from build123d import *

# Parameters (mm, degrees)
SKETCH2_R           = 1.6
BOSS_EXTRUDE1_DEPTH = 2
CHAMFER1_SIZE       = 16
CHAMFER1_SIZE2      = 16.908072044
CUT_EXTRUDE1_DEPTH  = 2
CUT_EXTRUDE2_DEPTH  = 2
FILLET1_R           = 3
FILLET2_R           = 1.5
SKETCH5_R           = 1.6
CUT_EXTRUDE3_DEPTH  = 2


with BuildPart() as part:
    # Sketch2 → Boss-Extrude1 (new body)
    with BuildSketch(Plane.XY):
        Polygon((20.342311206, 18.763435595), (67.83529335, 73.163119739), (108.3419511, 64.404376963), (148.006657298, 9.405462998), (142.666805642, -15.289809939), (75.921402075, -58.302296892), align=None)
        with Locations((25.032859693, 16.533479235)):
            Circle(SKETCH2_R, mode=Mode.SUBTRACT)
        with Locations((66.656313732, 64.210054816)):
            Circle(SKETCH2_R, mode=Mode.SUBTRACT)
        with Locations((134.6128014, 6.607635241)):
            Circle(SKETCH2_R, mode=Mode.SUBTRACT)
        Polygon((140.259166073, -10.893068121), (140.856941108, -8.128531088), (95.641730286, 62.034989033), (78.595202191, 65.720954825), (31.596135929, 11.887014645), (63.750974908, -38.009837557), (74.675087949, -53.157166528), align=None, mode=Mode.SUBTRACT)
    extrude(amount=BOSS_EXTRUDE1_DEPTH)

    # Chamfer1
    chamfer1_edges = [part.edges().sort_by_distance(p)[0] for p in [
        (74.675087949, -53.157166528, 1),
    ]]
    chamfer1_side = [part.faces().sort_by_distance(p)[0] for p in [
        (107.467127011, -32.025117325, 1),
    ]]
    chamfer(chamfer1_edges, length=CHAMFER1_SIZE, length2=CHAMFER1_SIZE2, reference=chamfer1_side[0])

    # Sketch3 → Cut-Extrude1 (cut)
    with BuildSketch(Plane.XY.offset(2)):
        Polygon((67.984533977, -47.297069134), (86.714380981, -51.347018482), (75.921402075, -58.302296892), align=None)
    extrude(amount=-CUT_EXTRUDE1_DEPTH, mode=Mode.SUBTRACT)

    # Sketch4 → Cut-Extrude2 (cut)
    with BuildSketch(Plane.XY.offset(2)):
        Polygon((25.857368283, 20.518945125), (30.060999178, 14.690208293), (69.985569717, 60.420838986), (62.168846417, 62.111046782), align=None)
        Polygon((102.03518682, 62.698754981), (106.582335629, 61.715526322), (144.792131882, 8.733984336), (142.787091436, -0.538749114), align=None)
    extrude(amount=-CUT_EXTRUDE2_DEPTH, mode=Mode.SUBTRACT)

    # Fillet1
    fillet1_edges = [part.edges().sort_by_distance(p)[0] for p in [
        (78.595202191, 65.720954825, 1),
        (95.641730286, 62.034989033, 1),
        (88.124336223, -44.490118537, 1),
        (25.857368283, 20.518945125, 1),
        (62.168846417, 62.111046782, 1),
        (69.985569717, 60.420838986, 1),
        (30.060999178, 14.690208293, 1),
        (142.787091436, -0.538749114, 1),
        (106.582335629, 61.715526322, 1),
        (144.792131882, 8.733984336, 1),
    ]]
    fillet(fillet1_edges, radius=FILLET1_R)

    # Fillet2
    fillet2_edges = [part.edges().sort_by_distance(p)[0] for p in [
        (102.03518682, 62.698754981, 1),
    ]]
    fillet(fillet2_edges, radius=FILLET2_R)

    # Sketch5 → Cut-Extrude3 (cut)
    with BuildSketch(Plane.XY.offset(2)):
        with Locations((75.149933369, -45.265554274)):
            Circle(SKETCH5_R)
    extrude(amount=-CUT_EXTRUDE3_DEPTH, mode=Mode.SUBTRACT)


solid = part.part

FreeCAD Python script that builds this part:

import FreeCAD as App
import Part
import Sketcher
from FreeCAD import Vector


def edges_at(feature, points):
    """Names of the edges that pass closest to the given points."""
    edges = feature.Shape.Edges
    near = lambda p: min(range(len(edges)), key=lambda i: edges[i].distToShape(Part.Vertex(*p))[0])
    return sorted({f"Edge{near(p) + 1}" for p in points})

doc = App.newDocument("Part")
body = doc.addObject("PartDesign::Body", "Body")

sketch1 = doc.addObject("Sketcher::SketchObject", "Sketch")
body.addObject(sketch1)
sketch1.AttachmentSupport = (doc.XY_Plane, [""])
sketch1.MapMode = "FlatFace"
sketch1.addGeometry([
    Part.LineSegment(Vector(67.835293, 73.16312, 0), Vector(20.342311, 18.763436, 0)),
    Part.LineSegment(Vector(20.342311, 18.763436, 0), Vector(75.921402, -58.302297, 0)),
    Part.LineSegment(Vector(75.921402, -58.302297, 0), Vector(142.666806, -15.28981, 0)),
    Part.LineSegment(Vector(142.666806, -15.28981, 0), Vector(148.006657, 9.405463, 0)),
    Part.LineSegment(Vector(148.006657, 9.405463, 0), Vector(108.341951, 64.404377, 0)),
    Part.LineSegment(Vector(108.341951, 64.404377, 0), Vector(67.835293, 73.16312, 0)),
    Part.LineSegment(Vector(140.259166, -10.893068, 0), Vector(74.675088, -53.157167, 0)),
    Part.LineSegment(Vector(74.675088, -53.157167, 0), Vector(63.750975, -38.009838, 0)),
    Part.LineSegment(Vector(63.750975, -38.009838, 0), Vector(31.596136, 11.887015, 0)),
    Part.LineSegment(Vector(31.596136, 11.887015, 0), Vector(78.595202, 65.720955, 0)),
    Part.LineSegment(Vector(78.595202, 65.720955, 0), Vector(95.64173, 62.034989, 0)),
    Part.LineSegment(Vector(95.64173, 62.034989, 0), Vector(140.856941, -8.128531, 0)),
    Part.LineSegment(Vector(140.856941, -8.128531, 0), Vector(140.259166, -10.893068, 0)),
    Part.Circle(Vector(134.612801, 6.607635, 0), Vector(0, 0, 1), 1.6),
    Part.Circle(Vector(25.03286, 16.533479, 0), Vector(0, 0, 1), 1.6),
    Part.Circle(Vector(66.656314, 64.210055, 0), Vector(0, 0, 1), 1.6),
], False)
sketch1.addConstraint([
    Sketcher.Constraint("Coincident", 0, 2, 1, 1),
    Sketcher.Constraint("Coincident", 1, 2, 2, 1),
    Sketcher.Constraint("Coincident", 2, 2, 3, 1),
    Sketcher.Constraint("Coincident", 3, 2, 4, 1),
    Sketcher.Constraint("Coincident", 4, 2, 5, 1),
    Sketcher.Constraint("Coincident", 5, 2, 0, 1),
    Sketcher.Constraint("Coincident", 6, 2, 7, 1),
    Sketcher.Constraint("Coincident", 7, 2, 8, 1),
    Sketcher.Constraint("Coincident", 8, 2, 9, 1),
    Sketcher.Constraint("Coincident", 9, 2, 10, 1),
    Sketcher.Constraint("Coincident", 10, 2, 11, 1),
    Sketcher.Constraint("Coincident", 11, 2, 12, 1),
    Sketcher.Constraint("Coincident", 12, 2, 6, 1),
    Sketcher.Constraint("Equal", 13, 14),
    Sketcher.Constraint("Equal", 14, 15),
    Sketcher.Constraint("Parallel", 1, 4),
    Sketcher.Constraint("Perpendicular", 3, 5),
    Sketcher.Constraint("Parallel", 2, 6),
    Sketcher.Constraint("Parallel", 4, 7),
    Sketcher.Constraint("Perpendicular", 6, 8),
    Sketcher.Constraint("Parallel", 0, 9),
    Sketcher.Constraint("Parallel", 5, 10),
    Sketcher.Constraint("Parallel", 8, 11),
    Sketcher.Constraint("Perpendicular", 10, 12),
    Sketcher.Constraint("Diameter", 13, 3.2),
    Sketcher.Constraint("DistanceX", -1, 1, 13, 3, 134.612801),
    Sketcher.Constraint("DistanceY", 13, 3, 0, 2, 12.1558),
    Sketcher.Constraint("DistanceX", 1, 2, 13, 3, 58.691399),
    Sketcher.Constraint("DistanceY", 6, 2, 13, 3, 59.764802),
    Sketcher.Constraint("DistanceY", 15, 3, 9, 2, 1.5109),
    Sketcher.Constraint("DistanceY", 6, 2, 12, 2, 42.264098),
    Sketcher.Constraint("Distance", 5, 41.442791),
    Sketcher.Constraint("DistanceX", -1, 1, 14, 3, 25.03286),
    Sketcher.Constraint("DistanceY", -1, 1, 14, 3, 16.533479),
    Sketcher.Constraint("DistanceX", -1, 1, 0, 2, 20.342311),
    Sketcher.Constraint("DistanceY", 2, 2, -1, 1, 15.28981),
    Sketcher.Constraint("DistanceX", -1, 1, 4, 2, 108.341951),
    Sketcher.Constraint("DistanceY", -1, 1, 5, 2, 73.16312),
    Sketcher.Constraint("DistanceX", -1, 1, 10, 2, 95.64173),
    Sketcher.Constraint("DistanceY", -1, 1, 10, 2, 62.034989),
    Sketcher.Constraint("DistanceX", -1, 1, 11, 2, 140.856941),
    Sketcher.Constraint("DistanceY", 11, 2, -1, 1, 8.128531),
    Sketcher.Constraint("DistanceY", 12, 2, -1, 1, 10.893068),
    Sketcher.Constraint("DistanceY", 13, 3, 15, 3, 57.60242),
    Sketcher.Constraint("DistanceX", 15, 3, 1, 2, 9.265088),
    Sketcher.Constraint("DistanceY", 1, 2, 15, 3, 122.512352),
    Sketcher.Constraint("DistanceX", 2, 2, 3, 2, 5.339852),
    Sketcher.Constraint("DistanceY", 6, 2, 7, 2, 15.147329),
])
pad1 = doc.addObject("PartDesign::Pad", "Pad")
body.addObject(pad1)
pad1.Profile = sketch1
pad1.Length = 2
doc.recompute()

chamfer = doc.addObject("PartDesign::Chamfer", "Chamfer")
body.addObject(chamfer)
chamfer.Base = (pad1, edges_at(pad1, [(74.675, -53.157, 1)]))
chamfer.ChamferType = "Two distances"
chamfer.Size = 16
chamfer.Size2 = 16.908072

sketch2 = doc.addObject("Sketcher::SketchObject", "Sketch001")
body.addObject(sketch2)
sketch2.AttachmentSupport = (doc.XY_Plane, [""])
sketch2.MapMode = "FlatFace"
sketch2.AttachmentOffset = App.Placement(Vector(0, 0, 2), App.Rotation())
sketch2.addGeometry([
    Part.LineSegment(Vector(86.714381, -51.347018, 0), Vector(67.984534, -47.297069, 0)),
    Part.LineSegment(Vector(67.984534, -47.297069, 0), Vector(75.921402, -58.302297, 0)),
    Part.LineSegment(Vector(75.921402, -58.302297, 0), Vector(86.714381, -51.347018, 0)),
], False)
sketch2.addConstraint([
    Sketcher.Constraint("Coincident", 0, 2, 1, 1),
    Sketcher.Constraint("Coincident", 1, 2, 2, 1),
    Sketcher.Constraint("Coincident", 2, 2, 0, 1),
    Sketcher.Constraint("Distance", 2, 12.839949),
    Sketcher.Constraint("DistanceY", 0, 2, -1, 1, 47.297069),
    Sketcher.Constraint("DistanceX", -1, 1, 2, 2, 86.714381),
    Sketcher.Constraint("DistanceY", 2, 2, -1, 1, 51.347018),
    Sketcher.Constraint("DistanceX", 0, 2, 1, 2, 7.936868),
    Sketcher.Constraint("DistanceX", 1, 2, 2, 2, 10.792979),
])
pocket1 = doc.addObject("PartDesign::Pocket", "Pocket")
body.addObject(pocket1)
pocket1.Profile = sketch2
pocket1.Length = 2

sketch3 = doc.addObject("Sketcher::SketchObject", "Sketch002")
body.addObject(sketch3)
sketch3.AttachmentSupport = (doc.XY_Plane, [""])
sketch3.MapMode = "FlatFace"
sketch3.AttachmentOffset = App.Placement(Vector(0, 0, 2), App.Rotation())
sketch3.addGeometry([
    Part.LineSegment(Vector(25.857368, 20.518945, 0), Vector(30.060999, 14.690208, 0)),
    Part.LineSegment(Vector(30.060999, 14.690208, 0), Vector(69.98557, 60.420839, 0)),
    Part.LineSegment(Vector(69.98557, 60.420839, 0), Vector(62.168846, 62.111047, 0)),
    Part.LineSegment(Vector(62.168846, 62.111047, 0), Vector(25.857368, 20.518945, 0)),
    Part.LineSegment(Vector(106.582336, 61.715526, 0), Vector(102.035187, 62.698755, 0)),
    Part.LineSegment(Vector(102.035187, 62.698755, 0), Vector(142.787091, -0.538749, 0)),
    Part.LineSegment(Vector(142.787091, -0.538749, 0), Vector(144.792132, 8.733984, 0)),
    Part.LineSegment(Vector(144.792132, 8.733984, 0), Vector(106.582336, 61.715526, 0)),
], False)
sketch3.addConstraint([
    Sketcher.Constraint("Coincident", 0, 2, 1, 1),
    Sketcher.Constraint("Coincident", 1, 2, 2, 1),
    Sketcher.Constraint("Coincident", 2, 2, 3, 1),
    Sketcher.Constraint("Coincident", 3, 2, 0, 1),
    Sketcher.Constraint("Coincident", 4, 2, 5, 1),
    Sketcher.Constraint("Coincident", 5, 2, 6, 1),
    Sketcher.Constraint("Coincident", 6, 2, 7, 1),
    Sketcher.Constraint("Coincident", 7, 2, 4, 1),
    Sketcher.Constraint("Parallel", 1, 3),
    Sketcher.Constraint("Parallel", 2, 4),
    Sketcher.Constraint("Perpendicular", 4, 6),
    Sketcher.Constraint("Parallel", 0, 7),
    Sketcher.Constraint("DistanceX", -1, 1, 0, 2, 30.060999),
    Sketcher.Constraint("DistanceY", 3, 2, 2, 2, 41.592102),
    Sketcher.Constraint("DistanceX", 3, 2, 1, 2, 44.128201),
    Sketcher.Constraint("Distance", 1, 60.706358),
    Sketcher.Constraint("Distance", 6, 9.487032),
    Sketcher.Constraint("DistanceY", -1, 1, 0, 2, 14.690208),
    Sketcher.Constraint("DistanceX", -1, 1, 1, 2, 69.98557),
    Sketcher.Constraint("DistanceX", -1, 1, 5, 2, 142.787091),
    Sketcher.Constraint("DistanceY", 5, 2, -1, 1, 0.538749),
    Sketcher.Constraint("DistanceX", -1, 1, 6, 2, 144.792132),
    Sketcher.Constraint("DistanceX", 2, 2, 4, 2, 39.86634),
    Sketcher.Constraint("DistanceY", 2, 2, 4, 2, 0.587708),
])
pocket2 = doc.addObject("PartDesign::Pocket", "Pocket001")
body.addObject(pocket2)
pocket2.Profile = sketch3
pocket2.Length = 2
doc.recompute()

fillet = doc.addObject("PartDesign::Fillet", "Fillet")
body.addObject(fillet)
fillet.Base = (pocket2, edges_at(pocket2, [
    (78.595, 65.721, 1),
    (95.642, 62.035, 1),
    (88.124, -44.49, 1),
    (25.857, 20.519, 1),
    (62.169, 62.111, 1),
    (69.986, 60.421, 1),
    (30.061, 14.69, 1),
    (142.787, -0.539, 1),
    (106.582, 61.716, 1),
    (144.792, 8.734, 1),
]))
fillet.Radius = 3
doc.recompute()

fillet2 = doc.addObject("PartDesign::Fillet", "Fillet001")
body.addObject(fillet2)
fillet2.Base = (fillet, edges_at(fillet, [(102.035, 62.699, 1)]))
fillet2.Radius = 1.5

sketch4 = doc.addObject("Sketcher::SketchObject", "Sketch003")
body.addObject(sketch4)
sketch4.AttachmentSupport = (doc.XY_Plane, [""])
sketch4.MapMode = "FlatFace"
sketch4.AttachmentOffset = App.Placement(Vector(0, 0, 2), App.Rotation())
sketch4.addGeometry(Part.Circle(Vector(75.149933, -45.265554, 0), Vector(0, 0, 1), 1.6), False)
sketch4.addConstraint([
    Sketcher.Constraint("Diameter", 0, 3.2),
    Sketcher.Constraint("DistanceX", -1, 1, 0, 3, 75.149933),
    Sketcher.Constraint("DistanceY", 0, 3, -1, 1, 45.265554),
])
pocket3 = doc.addObject("PartDesign::Pocket", "Pocket002")
body.addObject(pocket3)
pocket3.Profile = sketch4
pocket3.Length = 2

doc.recompute()
